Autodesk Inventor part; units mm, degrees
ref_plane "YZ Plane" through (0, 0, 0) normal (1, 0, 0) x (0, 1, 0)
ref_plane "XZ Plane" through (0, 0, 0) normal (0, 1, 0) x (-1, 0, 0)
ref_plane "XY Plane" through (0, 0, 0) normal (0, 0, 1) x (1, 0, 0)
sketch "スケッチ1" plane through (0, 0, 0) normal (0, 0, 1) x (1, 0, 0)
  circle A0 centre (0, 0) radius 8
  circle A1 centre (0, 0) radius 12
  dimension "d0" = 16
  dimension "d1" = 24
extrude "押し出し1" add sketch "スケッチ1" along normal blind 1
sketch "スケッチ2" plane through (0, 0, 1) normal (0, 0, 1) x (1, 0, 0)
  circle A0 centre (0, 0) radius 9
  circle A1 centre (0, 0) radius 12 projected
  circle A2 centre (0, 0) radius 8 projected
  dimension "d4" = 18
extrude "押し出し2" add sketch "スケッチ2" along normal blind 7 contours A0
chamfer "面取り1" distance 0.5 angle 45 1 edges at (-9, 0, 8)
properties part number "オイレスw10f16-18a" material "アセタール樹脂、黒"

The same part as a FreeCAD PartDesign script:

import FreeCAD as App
import Part
import Sketcher

V = App.Vector


def edges_at(feature, points):
    """Names of the edges that pass closest to the given points."""
    edges = feature.Shape.Edges
    near = lambda p: min(range(len(edges)), key=lambda i: edges[i].distToShape(Part.Vertex(*p))[0])
    return sorted({f"Edge{near(p) + 1}" for p in points})

doc = App.newDocument("Part")
params = doc.addObject("Spreadsheet::Sheet", "Params")
for row, (alias, value) in enumerate([
    ("sketch1_diameter", "24 mm"),
    ("sketch1_diameter2", "16 mm"),
    ("pad1_length", "1 mm"),
    ("sketch2_diameter", "18 mm"),
    ("sketch2_diameter2", "16 mm"),
    ("pad2_length", "7 mm"),
    ("chamfer_size", "0.5 mm"),
], start=1):
    params.set(f"A{row}", alias)
    params.set(f"B{row}", "=" + value)
    params.setAlias(f"B{row}", alias)

body = doc.addObject("PartDesign::Body", "Body")

# Sketch on XY plane
sketch1 = body.newObject("Sketcher::SketchObject", "Sketch")
sketch1.AttachmentSupport = (doc.getObject("XY_Plane"), [""])
sketch1.MapMode = "FlatFace"
sketch1.addGeometry(Part.Circle(V(0, 0, 0), V(0, 0, 1), 12), False)
sketch1.addGeometry(Part.Circle(V(0, 0, 0), V(0, 0, 1), 8), False)
sketch1.addConstraint(Sketcher.Constraint("Coincident", 0, 3, -1, 1))
sketch1.addConstraint(Sketcher.Constraint("Coincident", 1, 3, -1, 1))
sketch1.addConstraint(Sketcher.Constraint("Diameter", 0, 24.0))
sketch1.addConstraint(Sketcher.Constraint("Diameter", 1, 16.0))
sketch1.setExpression("Constraints[2]", "Params.sketch1_diameter")
sketch1.setExpression("Constraints[3]", "Params.sketch1_diameter2")
pad1 = body.newObject("PartDesign::Pad", "Pad")
pad1.Profile = sketch1
pad1.setExpression("Length", "Params.pad1_length")

# Sketch on XY plane
sketch2 = body.newObject("Sketcher::SketchObject", "Sketch001")
sketch2.AttachmentSupport = (doc.getObject("XY_Plane"), [""])
sketch2.MapMode = "FlatFace"
sketch2.AttachmentOffset = App.Placement(V(0, 0, 1), App.Rotation())
sketch2.addGeometry(Part.Circle(V(0, 0, 0), V(0, 0, 1), 9), False)
sketch2.addGeometry(Part.Circle(V(0, 0, 0), V(0, 0, 1), 8), False)
sketch2.addConstraint(Sketcher.Constraint("Coincident", 0, 3, -1, 1))
sketch2.addConstraint(Sketcher.Constraint("Coincident", 1, 3, -1, 1))
sketch2.addConstraint(Sketcher.Constraint("Diameter", 0, 18.0))
sketch2.addConstraint(Sketcher.Constraint("Diameter", 1, 16.0))
sketch2.setExpression("Constraints[2]", "Params.sketch2_diameter")
sketch2.setExpression("Constraints[3]", "Params.sketch2_diameter2")
pad2 = body.newObject("PartDesign::Pad", "Pad001")
pad2.Profile = sketch2
pad2.setExpression("Length", "Params.pad2_length")
doc.recompute()

chamfer = body.newObject("PartDesign::Chamfer", "Chamfer")
chamfer.Base = (pad2, edges_at(pad2, [(-9, 0, 8)]))
chamfer.setExpression("Size", "Params.chamfer_size")

doc.recompute()
